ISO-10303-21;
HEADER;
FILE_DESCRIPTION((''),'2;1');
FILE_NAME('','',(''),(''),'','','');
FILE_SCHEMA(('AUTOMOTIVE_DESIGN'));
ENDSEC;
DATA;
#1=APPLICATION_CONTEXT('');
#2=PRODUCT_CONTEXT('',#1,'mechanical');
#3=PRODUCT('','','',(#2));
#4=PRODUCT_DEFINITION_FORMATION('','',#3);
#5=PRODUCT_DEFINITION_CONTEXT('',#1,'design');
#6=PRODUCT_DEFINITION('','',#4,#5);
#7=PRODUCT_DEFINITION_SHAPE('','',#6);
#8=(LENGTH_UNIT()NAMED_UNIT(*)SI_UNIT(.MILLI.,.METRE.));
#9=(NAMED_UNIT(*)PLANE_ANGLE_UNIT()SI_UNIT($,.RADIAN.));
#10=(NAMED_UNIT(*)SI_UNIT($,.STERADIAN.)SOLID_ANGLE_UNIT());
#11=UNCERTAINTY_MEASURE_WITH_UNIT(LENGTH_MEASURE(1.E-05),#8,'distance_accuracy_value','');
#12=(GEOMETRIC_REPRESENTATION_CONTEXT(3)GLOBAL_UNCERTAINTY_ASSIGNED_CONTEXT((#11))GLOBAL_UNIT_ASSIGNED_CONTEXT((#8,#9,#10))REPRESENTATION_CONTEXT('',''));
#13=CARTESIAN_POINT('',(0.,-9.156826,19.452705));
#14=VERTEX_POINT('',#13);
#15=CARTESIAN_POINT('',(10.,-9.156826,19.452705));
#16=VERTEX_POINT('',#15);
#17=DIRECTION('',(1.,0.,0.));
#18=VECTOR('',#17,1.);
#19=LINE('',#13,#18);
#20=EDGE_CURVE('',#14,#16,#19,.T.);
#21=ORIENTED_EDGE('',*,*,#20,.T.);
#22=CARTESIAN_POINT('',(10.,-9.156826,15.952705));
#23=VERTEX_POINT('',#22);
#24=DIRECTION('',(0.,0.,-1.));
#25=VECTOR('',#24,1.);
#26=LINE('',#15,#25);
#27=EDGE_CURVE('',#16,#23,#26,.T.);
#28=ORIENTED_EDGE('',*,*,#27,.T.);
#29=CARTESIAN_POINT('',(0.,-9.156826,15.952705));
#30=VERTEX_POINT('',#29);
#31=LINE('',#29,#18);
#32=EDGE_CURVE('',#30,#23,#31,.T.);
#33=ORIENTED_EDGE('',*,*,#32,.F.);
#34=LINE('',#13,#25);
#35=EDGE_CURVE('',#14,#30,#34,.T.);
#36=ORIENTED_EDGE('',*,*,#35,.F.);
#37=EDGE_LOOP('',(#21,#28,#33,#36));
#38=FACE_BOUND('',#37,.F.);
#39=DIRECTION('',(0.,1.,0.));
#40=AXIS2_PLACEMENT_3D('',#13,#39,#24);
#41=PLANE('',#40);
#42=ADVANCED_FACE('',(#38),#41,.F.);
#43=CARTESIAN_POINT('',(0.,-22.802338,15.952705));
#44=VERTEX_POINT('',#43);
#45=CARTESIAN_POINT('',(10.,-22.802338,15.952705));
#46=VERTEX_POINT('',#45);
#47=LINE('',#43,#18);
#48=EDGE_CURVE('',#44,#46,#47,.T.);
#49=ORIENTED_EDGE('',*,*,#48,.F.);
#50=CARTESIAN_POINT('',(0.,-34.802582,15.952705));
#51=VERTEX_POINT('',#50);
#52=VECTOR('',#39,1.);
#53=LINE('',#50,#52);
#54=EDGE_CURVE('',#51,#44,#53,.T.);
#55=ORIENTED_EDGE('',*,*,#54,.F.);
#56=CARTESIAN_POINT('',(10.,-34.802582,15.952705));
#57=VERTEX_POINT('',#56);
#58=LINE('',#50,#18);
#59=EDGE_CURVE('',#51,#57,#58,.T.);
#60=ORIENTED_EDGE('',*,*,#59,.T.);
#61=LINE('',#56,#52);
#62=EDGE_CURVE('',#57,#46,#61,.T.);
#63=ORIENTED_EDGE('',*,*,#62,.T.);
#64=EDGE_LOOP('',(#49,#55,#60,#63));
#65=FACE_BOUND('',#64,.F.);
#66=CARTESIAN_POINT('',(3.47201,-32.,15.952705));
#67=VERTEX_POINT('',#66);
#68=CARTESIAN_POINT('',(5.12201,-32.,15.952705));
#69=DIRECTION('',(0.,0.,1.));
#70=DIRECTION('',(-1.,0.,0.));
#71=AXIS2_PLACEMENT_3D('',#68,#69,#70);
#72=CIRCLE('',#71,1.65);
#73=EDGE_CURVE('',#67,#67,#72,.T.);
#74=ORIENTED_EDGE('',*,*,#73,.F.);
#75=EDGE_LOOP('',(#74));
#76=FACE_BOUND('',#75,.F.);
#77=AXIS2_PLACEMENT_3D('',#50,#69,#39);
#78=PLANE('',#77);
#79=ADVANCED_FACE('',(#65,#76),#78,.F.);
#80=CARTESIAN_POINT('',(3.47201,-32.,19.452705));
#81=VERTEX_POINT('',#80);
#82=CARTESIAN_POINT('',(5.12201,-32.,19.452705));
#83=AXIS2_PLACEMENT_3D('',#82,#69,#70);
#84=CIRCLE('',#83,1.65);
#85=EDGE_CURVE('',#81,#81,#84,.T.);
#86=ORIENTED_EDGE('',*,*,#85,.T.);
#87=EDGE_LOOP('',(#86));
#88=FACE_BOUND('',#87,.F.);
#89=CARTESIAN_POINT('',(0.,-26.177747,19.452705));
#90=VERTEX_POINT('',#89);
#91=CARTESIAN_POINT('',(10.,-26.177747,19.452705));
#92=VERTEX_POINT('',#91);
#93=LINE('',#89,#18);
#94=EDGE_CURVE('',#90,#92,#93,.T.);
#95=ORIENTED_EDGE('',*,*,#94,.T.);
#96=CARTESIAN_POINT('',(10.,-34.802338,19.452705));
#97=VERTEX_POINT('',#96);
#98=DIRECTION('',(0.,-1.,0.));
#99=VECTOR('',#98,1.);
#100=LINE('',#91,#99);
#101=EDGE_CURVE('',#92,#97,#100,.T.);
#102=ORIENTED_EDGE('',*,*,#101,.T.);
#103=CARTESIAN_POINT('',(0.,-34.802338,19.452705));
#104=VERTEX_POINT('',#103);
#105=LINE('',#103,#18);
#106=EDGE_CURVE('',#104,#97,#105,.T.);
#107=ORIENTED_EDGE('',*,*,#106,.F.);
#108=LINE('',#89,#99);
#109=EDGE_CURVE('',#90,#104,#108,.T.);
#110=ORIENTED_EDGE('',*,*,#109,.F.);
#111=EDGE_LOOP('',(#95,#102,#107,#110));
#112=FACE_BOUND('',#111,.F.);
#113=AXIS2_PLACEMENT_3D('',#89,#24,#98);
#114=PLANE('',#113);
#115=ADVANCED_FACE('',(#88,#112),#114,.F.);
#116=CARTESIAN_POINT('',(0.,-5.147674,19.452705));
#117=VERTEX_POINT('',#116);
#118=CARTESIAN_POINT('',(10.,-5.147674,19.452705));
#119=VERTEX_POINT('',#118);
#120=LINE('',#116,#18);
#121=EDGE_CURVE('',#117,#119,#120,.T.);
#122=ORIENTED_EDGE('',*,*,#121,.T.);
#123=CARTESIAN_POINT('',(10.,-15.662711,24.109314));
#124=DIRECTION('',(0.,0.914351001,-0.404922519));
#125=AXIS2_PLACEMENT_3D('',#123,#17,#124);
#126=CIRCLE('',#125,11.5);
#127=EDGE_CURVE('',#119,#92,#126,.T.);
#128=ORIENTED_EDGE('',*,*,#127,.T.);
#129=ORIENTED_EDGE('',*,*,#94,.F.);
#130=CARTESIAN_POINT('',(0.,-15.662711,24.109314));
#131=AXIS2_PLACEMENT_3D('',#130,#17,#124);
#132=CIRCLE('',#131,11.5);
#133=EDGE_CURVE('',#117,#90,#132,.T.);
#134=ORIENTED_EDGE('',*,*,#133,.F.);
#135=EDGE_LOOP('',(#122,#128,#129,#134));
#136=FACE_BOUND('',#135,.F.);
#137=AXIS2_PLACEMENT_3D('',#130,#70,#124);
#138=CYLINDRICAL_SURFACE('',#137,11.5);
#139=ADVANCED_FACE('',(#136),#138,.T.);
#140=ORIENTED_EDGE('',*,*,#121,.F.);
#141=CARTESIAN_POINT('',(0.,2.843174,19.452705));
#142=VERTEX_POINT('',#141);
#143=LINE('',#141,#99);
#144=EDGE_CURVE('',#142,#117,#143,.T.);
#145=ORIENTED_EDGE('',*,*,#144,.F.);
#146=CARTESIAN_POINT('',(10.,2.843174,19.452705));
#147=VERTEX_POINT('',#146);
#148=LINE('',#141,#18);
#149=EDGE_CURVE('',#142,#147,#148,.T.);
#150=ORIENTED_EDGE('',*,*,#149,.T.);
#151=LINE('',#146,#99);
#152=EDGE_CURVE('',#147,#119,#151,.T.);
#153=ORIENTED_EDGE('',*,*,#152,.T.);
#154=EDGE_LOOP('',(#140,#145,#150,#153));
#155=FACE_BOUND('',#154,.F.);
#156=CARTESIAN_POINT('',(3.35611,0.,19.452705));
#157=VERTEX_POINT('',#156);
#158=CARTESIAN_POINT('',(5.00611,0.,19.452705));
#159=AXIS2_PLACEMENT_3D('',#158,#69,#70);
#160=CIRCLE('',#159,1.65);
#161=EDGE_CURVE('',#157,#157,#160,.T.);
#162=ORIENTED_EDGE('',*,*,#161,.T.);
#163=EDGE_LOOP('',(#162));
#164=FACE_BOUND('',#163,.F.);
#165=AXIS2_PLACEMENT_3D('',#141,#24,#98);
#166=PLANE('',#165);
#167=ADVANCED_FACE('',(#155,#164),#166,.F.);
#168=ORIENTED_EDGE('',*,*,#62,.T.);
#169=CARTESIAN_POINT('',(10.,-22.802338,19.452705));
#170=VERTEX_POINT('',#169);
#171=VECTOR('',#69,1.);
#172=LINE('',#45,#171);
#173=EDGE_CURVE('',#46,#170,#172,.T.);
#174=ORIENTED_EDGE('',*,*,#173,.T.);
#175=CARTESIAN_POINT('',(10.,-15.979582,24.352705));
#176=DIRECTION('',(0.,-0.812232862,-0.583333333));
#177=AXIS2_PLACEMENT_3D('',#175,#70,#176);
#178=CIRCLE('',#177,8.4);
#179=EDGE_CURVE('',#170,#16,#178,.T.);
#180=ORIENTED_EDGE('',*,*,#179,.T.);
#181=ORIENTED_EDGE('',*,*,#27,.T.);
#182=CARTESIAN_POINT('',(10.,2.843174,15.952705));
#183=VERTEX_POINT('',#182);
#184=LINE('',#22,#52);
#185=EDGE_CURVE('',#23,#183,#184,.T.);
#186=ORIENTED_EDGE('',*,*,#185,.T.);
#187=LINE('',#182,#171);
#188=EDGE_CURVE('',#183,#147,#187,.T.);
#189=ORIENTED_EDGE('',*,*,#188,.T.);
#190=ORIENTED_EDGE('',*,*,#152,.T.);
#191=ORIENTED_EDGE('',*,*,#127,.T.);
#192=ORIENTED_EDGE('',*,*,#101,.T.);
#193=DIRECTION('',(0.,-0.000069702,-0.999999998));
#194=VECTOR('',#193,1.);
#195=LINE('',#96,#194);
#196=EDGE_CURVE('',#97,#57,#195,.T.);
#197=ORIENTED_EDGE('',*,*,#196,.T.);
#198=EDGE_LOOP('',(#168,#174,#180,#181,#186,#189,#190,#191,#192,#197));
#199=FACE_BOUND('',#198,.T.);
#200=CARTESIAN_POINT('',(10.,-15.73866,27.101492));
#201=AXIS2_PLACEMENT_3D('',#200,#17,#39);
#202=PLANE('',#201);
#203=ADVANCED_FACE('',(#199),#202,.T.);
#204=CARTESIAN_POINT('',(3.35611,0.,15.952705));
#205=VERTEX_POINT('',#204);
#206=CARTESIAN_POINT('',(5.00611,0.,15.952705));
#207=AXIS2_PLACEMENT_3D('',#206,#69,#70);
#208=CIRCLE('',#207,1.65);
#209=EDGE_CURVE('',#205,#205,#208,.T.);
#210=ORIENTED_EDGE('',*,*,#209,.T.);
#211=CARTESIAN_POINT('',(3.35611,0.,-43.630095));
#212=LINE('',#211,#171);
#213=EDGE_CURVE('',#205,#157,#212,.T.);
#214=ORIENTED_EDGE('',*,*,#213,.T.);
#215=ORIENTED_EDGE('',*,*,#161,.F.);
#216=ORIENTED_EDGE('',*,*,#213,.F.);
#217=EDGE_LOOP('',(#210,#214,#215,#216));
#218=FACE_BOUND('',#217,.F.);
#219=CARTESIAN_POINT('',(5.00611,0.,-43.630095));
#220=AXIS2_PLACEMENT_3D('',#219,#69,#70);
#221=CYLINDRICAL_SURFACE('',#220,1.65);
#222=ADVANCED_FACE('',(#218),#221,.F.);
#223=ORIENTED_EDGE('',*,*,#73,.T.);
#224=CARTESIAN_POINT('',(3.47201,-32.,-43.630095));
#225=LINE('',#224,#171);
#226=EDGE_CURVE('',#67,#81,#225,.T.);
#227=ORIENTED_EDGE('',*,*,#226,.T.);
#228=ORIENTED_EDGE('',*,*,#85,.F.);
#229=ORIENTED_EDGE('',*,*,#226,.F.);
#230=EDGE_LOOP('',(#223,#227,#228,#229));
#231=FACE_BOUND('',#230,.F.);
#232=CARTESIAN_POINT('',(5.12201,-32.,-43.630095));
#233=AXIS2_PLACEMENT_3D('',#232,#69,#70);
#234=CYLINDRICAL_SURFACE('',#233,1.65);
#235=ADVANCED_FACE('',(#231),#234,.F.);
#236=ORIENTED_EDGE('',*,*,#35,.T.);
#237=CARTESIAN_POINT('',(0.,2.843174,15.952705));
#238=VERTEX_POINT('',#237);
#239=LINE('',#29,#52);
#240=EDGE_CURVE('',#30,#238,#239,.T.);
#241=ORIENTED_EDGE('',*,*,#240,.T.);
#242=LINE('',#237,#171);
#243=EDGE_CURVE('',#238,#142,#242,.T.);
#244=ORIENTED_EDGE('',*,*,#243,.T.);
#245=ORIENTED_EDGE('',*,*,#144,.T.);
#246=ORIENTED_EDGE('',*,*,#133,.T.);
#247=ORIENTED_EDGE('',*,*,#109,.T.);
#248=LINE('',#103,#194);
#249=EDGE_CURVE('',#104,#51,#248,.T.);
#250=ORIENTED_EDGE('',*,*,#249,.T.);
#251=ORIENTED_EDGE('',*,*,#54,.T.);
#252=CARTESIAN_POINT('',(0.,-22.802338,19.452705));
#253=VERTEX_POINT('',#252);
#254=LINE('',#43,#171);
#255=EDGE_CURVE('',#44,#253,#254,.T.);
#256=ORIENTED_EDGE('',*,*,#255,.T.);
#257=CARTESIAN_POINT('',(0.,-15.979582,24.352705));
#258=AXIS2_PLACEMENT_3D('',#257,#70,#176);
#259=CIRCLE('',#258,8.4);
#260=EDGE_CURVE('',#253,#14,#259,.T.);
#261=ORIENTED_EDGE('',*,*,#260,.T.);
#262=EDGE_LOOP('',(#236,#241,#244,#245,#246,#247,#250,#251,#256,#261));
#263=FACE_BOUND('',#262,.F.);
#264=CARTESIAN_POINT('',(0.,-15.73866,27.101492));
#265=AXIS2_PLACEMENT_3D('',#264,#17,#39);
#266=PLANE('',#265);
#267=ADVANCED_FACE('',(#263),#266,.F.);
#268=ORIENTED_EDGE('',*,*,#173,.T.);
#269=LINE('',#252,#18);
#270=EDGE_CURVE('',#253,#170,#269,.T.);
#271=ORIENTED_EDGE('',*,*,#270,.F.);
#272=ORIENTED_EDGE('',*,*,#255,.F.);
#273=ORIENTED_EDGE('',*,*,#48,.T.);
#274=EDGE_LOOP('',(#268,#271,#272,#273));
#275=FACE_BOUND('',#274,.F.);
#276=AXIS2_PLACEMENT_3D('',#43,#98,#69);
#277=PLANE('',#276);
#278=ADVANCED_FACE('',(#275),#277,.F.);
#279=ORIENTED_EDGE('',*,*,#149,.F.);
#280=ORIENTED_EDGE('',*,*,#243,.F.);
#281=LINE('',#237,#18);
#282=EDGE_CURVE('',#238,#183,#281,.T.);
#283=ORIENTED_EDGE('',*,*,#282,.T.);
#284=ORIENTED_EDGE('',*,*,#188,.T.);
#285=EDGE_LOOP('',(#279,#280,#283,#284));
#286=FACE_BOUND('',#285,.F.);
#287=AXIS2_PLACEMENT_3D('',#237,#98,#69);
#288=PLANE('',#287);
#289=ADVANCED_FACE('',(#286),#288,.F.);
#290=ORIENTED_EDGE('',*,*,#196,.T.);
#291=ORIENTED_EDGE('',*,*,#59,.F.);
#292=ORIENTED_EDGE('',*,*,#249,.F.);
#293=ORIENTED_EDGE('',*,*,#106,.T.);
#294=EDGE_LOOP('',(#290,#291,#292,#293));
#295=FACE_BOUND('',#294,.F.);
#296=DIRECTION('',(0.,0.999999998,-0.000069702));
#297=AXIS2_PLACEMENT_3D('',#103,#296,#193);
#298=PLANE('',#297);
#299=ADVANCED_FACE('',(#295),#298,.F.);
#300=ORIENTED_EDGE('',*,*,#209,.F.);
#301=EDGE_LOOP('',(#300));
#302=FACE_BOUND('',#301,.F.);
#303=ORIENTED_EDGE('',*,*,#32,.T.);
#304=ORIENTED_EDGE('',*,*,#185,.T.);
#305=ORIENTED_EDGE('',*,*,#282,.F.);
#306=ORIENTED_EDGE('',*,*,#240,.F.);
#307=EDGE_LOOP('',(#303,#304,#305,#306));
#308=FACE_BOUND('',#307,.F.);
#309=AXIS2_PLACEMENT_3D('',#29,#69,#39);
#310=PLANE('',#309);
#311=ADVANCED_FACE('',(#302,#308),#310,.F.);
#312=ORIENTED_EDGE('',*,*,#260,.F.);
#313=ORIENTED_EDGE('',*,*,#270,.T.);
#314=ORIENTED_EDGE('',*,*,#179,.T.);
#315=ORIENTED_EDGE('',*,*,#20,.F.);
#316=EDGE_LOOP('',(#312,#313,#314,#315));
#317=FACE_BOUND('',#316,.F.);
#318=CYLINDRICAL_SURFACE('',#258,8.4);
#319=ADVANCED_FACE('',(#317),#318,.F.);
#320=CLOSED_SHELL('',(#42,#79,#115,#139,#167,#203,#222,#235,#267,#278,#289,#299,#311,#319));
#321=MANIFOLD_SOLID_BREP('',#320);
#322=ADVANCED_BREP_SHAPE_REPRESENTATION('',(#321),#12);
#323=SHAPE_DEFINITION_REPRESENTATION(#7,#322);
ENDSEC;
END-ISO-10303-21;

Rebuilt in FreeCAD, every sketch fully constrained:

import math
import FreeCAD as App
import Part
import Sketcher
from FreeCAD import Vector
Q = App.Units.Quantity

doc = App.newDocument("Part")
body = doc.addObject("PartDesign::Body", "Body")

# Sketch on YZ plane
sketch1 = body.newObject("Sketcher::SketchObject", "Sketch")
sketch1.AttachmentSupport = (doc.getObject("YZ_Plane"), [""])
sketch1.MapMode = "FlatFace"
sketch1.addGeometry(Part.ArcOfCircle(Part.Circle(Vector(-15.979582, 24.352705, 0), Vector(0, 0, 1), 8.4), math.radians(-35.685335), math.radians(215.685335)), False)
sketch1.addGeometry(Part.LineSegment(Vector(-9.156826, 19.452705, 0), Vector(-9.156826, 15.952705, 0)), False)
sketch1.addGeometry(Part.LineSegment(Vector(-9.156826, 15.952705, 0), Vector(2.843174, 15.952705, 0)), False)
sketch1.addGeometry(Part.LineSegment(Vector(2.843174, 15.952705, 0), Vector(2.843174, 19.452705, 0)), False)
sketch1.addGeometry(Part.LineSegment(Vector(2.843174, 19.452705, 0), Vector(-5.147674, 19.452705, 0)), False)
sketch1.addGeometry(Part.ArcOfCircle(Part.Circle(Vector(-15.662711, 24.109314, 0), Vector(0, 0, 1), 11.5), math.radians(-23.886272), math.radians(203.886272)), False)
sketch1.addGeometry(Part.LineSegment(Vector(-26.177747, 19.452705, 0), Vector(-34.802338, 19.452705, 0)), False)
sketch1.addGeometry(Part.LineSegment(Vector(-34.802338, 19.452705, 0), Vector(-34.802582, 15.952705, 0)), False)
sketch1.addGeometry(Part.LineSegment(Vector(-34.802582, 15.952705, 0), Vector(-22.802338, 15.952705, 0)), False)
sketch1.addGeometry(Part.LineSegment(Vector(-22.802338, 15.952705, 0), Vector(-22.802338, 19.452705, 0)), False)
sketch1.addConstraint(Sketcher.Constraint("Coincident", 0, 1, 1, 1))
sketch1.addConstraint(Sketcher.Constraint("Coincident", 1, 2, 2, 1))
sketch1.addConstraint(Sketcher.Constraint("Coincident", 2, 2, 3, 1))
sketch1.addConstraint(Sketcher.Constraint("Coincident", 3, 2, 4, 1))
sketch1.addConstraint(Sketcher.Constraint("Coincident", 4, 2, 5, 1))
sketch1.addConstraint(Sketcher.Constraint("Coincident", 5, 2, 6, 1))
sketch1.addConstraint(Sketcher.Constraint("Coincident", 6, 2, 7, 1))
sketch1.addConstraint(Sketcher.Constraint("Coincident", 7, 2, 8, 1))
sketch1.addConstraint(Sketcher.Constraint("Coincident", 8, 2, 9, 1))
sketch1.addConstraint(Sketcher.Constraint("Coincident", 9, 2, 0, 2))
sketch1.addConstraint(Sketcher.Constraint("Vertical", 1))
sketch1.addConstraint(Sketcher.Constraint("Horizontal", 2))
sketch1.addConstraint(Sketcher.Constraint("Vertical", 3))
sketch1.addConstraint(Sketcher.Constraint("Horizontal", 4))
sketch1.addConstraint(Sketcher.Constraint("Horizontal", 6))
sketch1.addConstraint(Sketcher.Constraint("Horizontal", 8))
sketch1.addConstraint(Sketcher.Constraint("Vertical", 9))
sketch1.addConstraint(Sketcher.Constraint("Horizontal", 0, 1, 3, 2))
sketch1.addConstraint(Sketcher.Constraint("Horizontal", 4, 2, 5, 2))
sketch1.addConstraint(Sketcher.Constraint("Horizontal", 2, 2, 7, 2))
sketch1.addConstraint(Sketcher.Constraint("Horizontal", 6, 2, 9, 2))
sketch1.addConstraint(Sketcher.Constraint("Radius", 0, Q("8.4 mm")))
sketch1.addConstraint(Sketcher.Constraint("Radius", 5, Q("11.5 mm")))
sketch1.addConstraint(Sketcher.Constraint("DistanceX", 2, 1, 2, 2, Q("12 mm")))
sketch1.addConstraint(Sketcher.Constraint("DistanceY", 1, 2, 1, 1, Q("3.5 mm")))
sketch1.addConstraint(Sketcher.Constraint("DistanceX", 6, 2, 8, 2, Q("12 mm")))
sketch1.addConstraint(Sketcher.Constraint("DistanceY", 0, 1, 0, 3, Q("4.9 mm")))
sketch1.addConstraint(Sketcher.Constraint("DistanceX", 7, 2, 0, 3, Q("18.823 mm")))
sketch1.addConstraint(Sketcher.Constraint("DistanceX", 6, 2, 6, 1, Q("8.624591 mm")))
sketch1.addConstraint(Sketcher.Constraint("DistanceX", 4, 2, 4, 1, Q("7.990848 mm")))
sketch1.addConstraint(Sketcher.Constraint("DistanceX", 5, 3, -1, 1, Q("15.662711 mm")))
sketch1.addConstraint(Sketcher.Constraint("DistanceY", -1, 1, 0, 3, Q("24.352705 mm")))
pad1 = body.newObject("PartDesign::Pad", "Pad")
pad1.Profile = sketch1
pad1.Length = 10

# Sketch on XY plane
sketch2 = body.newObject("Sketcher::SketchObject", "Sketch001")
sketch2.AttachmentSupport = (doc.getObject("XY_Plane"), [""])
sketch2.MapMode = "FlatFace"
sketch2.addGeometry(Part.Circle(Vector(5.12201, -32, 0), Vector(0, 0, 1), 1.65), False)
sketch2.addConstraint(Sketcher.Constraint("Diameter", 0, Q("3.3 mm")))
sketch2.addConstraint(Sketcher.Constraint("DistanceY", 0, 3, -1, 1, Q("32 mm")))
sketch2.addConstraint(Sketcher.Constraint("DistanceX", -1, 1, 0, 3, Q("5.12201 mm")))
doc.recompute()
hole = body.newObject("PartDesign::Hole", "Hole")
hole.Profile = sketch2
hole.ThreadType = "None"
hole.Diameter = 3.3
hole.DepthType = "ThroughAll"
hole.Reversed = True

# Sketch on XY plane
sketch3 = body.newObject("Sketcher::SketchObject", "Sketch002")
sketch3.AttachmentSupport = (doc.getObject("XY_Plane"), [""])
sketch3.MapMode = "FlatFace"
sketch3.addGeometry(Part.Circle(Vector(5.00611, 0, 0), Vector(0, 0, 1), 1.65), False)
sketch3.addConstraint(Sketcher.Constraint("PointOnObject", 0, 3, -1))
sketch3.addConstraint(Sketcher.Constraint("Diameter", 0, Q("3.3 mm")))
sketch3.addConstraint(Sketcher.Constraint("DistanceX", -1, 1, 0, 3, Q("5.00611 mm")))
doc.recompute()
hole2 = body.newObject("PartDesign::Hole", "Hole001")
hole2.Profile = sketch3
hole2.ThreadType = "None"
hole2.Diameter = 3.3
hole2.DepthType = "ThroughAll"
hole2.Reversed = True

doc.recompute()
